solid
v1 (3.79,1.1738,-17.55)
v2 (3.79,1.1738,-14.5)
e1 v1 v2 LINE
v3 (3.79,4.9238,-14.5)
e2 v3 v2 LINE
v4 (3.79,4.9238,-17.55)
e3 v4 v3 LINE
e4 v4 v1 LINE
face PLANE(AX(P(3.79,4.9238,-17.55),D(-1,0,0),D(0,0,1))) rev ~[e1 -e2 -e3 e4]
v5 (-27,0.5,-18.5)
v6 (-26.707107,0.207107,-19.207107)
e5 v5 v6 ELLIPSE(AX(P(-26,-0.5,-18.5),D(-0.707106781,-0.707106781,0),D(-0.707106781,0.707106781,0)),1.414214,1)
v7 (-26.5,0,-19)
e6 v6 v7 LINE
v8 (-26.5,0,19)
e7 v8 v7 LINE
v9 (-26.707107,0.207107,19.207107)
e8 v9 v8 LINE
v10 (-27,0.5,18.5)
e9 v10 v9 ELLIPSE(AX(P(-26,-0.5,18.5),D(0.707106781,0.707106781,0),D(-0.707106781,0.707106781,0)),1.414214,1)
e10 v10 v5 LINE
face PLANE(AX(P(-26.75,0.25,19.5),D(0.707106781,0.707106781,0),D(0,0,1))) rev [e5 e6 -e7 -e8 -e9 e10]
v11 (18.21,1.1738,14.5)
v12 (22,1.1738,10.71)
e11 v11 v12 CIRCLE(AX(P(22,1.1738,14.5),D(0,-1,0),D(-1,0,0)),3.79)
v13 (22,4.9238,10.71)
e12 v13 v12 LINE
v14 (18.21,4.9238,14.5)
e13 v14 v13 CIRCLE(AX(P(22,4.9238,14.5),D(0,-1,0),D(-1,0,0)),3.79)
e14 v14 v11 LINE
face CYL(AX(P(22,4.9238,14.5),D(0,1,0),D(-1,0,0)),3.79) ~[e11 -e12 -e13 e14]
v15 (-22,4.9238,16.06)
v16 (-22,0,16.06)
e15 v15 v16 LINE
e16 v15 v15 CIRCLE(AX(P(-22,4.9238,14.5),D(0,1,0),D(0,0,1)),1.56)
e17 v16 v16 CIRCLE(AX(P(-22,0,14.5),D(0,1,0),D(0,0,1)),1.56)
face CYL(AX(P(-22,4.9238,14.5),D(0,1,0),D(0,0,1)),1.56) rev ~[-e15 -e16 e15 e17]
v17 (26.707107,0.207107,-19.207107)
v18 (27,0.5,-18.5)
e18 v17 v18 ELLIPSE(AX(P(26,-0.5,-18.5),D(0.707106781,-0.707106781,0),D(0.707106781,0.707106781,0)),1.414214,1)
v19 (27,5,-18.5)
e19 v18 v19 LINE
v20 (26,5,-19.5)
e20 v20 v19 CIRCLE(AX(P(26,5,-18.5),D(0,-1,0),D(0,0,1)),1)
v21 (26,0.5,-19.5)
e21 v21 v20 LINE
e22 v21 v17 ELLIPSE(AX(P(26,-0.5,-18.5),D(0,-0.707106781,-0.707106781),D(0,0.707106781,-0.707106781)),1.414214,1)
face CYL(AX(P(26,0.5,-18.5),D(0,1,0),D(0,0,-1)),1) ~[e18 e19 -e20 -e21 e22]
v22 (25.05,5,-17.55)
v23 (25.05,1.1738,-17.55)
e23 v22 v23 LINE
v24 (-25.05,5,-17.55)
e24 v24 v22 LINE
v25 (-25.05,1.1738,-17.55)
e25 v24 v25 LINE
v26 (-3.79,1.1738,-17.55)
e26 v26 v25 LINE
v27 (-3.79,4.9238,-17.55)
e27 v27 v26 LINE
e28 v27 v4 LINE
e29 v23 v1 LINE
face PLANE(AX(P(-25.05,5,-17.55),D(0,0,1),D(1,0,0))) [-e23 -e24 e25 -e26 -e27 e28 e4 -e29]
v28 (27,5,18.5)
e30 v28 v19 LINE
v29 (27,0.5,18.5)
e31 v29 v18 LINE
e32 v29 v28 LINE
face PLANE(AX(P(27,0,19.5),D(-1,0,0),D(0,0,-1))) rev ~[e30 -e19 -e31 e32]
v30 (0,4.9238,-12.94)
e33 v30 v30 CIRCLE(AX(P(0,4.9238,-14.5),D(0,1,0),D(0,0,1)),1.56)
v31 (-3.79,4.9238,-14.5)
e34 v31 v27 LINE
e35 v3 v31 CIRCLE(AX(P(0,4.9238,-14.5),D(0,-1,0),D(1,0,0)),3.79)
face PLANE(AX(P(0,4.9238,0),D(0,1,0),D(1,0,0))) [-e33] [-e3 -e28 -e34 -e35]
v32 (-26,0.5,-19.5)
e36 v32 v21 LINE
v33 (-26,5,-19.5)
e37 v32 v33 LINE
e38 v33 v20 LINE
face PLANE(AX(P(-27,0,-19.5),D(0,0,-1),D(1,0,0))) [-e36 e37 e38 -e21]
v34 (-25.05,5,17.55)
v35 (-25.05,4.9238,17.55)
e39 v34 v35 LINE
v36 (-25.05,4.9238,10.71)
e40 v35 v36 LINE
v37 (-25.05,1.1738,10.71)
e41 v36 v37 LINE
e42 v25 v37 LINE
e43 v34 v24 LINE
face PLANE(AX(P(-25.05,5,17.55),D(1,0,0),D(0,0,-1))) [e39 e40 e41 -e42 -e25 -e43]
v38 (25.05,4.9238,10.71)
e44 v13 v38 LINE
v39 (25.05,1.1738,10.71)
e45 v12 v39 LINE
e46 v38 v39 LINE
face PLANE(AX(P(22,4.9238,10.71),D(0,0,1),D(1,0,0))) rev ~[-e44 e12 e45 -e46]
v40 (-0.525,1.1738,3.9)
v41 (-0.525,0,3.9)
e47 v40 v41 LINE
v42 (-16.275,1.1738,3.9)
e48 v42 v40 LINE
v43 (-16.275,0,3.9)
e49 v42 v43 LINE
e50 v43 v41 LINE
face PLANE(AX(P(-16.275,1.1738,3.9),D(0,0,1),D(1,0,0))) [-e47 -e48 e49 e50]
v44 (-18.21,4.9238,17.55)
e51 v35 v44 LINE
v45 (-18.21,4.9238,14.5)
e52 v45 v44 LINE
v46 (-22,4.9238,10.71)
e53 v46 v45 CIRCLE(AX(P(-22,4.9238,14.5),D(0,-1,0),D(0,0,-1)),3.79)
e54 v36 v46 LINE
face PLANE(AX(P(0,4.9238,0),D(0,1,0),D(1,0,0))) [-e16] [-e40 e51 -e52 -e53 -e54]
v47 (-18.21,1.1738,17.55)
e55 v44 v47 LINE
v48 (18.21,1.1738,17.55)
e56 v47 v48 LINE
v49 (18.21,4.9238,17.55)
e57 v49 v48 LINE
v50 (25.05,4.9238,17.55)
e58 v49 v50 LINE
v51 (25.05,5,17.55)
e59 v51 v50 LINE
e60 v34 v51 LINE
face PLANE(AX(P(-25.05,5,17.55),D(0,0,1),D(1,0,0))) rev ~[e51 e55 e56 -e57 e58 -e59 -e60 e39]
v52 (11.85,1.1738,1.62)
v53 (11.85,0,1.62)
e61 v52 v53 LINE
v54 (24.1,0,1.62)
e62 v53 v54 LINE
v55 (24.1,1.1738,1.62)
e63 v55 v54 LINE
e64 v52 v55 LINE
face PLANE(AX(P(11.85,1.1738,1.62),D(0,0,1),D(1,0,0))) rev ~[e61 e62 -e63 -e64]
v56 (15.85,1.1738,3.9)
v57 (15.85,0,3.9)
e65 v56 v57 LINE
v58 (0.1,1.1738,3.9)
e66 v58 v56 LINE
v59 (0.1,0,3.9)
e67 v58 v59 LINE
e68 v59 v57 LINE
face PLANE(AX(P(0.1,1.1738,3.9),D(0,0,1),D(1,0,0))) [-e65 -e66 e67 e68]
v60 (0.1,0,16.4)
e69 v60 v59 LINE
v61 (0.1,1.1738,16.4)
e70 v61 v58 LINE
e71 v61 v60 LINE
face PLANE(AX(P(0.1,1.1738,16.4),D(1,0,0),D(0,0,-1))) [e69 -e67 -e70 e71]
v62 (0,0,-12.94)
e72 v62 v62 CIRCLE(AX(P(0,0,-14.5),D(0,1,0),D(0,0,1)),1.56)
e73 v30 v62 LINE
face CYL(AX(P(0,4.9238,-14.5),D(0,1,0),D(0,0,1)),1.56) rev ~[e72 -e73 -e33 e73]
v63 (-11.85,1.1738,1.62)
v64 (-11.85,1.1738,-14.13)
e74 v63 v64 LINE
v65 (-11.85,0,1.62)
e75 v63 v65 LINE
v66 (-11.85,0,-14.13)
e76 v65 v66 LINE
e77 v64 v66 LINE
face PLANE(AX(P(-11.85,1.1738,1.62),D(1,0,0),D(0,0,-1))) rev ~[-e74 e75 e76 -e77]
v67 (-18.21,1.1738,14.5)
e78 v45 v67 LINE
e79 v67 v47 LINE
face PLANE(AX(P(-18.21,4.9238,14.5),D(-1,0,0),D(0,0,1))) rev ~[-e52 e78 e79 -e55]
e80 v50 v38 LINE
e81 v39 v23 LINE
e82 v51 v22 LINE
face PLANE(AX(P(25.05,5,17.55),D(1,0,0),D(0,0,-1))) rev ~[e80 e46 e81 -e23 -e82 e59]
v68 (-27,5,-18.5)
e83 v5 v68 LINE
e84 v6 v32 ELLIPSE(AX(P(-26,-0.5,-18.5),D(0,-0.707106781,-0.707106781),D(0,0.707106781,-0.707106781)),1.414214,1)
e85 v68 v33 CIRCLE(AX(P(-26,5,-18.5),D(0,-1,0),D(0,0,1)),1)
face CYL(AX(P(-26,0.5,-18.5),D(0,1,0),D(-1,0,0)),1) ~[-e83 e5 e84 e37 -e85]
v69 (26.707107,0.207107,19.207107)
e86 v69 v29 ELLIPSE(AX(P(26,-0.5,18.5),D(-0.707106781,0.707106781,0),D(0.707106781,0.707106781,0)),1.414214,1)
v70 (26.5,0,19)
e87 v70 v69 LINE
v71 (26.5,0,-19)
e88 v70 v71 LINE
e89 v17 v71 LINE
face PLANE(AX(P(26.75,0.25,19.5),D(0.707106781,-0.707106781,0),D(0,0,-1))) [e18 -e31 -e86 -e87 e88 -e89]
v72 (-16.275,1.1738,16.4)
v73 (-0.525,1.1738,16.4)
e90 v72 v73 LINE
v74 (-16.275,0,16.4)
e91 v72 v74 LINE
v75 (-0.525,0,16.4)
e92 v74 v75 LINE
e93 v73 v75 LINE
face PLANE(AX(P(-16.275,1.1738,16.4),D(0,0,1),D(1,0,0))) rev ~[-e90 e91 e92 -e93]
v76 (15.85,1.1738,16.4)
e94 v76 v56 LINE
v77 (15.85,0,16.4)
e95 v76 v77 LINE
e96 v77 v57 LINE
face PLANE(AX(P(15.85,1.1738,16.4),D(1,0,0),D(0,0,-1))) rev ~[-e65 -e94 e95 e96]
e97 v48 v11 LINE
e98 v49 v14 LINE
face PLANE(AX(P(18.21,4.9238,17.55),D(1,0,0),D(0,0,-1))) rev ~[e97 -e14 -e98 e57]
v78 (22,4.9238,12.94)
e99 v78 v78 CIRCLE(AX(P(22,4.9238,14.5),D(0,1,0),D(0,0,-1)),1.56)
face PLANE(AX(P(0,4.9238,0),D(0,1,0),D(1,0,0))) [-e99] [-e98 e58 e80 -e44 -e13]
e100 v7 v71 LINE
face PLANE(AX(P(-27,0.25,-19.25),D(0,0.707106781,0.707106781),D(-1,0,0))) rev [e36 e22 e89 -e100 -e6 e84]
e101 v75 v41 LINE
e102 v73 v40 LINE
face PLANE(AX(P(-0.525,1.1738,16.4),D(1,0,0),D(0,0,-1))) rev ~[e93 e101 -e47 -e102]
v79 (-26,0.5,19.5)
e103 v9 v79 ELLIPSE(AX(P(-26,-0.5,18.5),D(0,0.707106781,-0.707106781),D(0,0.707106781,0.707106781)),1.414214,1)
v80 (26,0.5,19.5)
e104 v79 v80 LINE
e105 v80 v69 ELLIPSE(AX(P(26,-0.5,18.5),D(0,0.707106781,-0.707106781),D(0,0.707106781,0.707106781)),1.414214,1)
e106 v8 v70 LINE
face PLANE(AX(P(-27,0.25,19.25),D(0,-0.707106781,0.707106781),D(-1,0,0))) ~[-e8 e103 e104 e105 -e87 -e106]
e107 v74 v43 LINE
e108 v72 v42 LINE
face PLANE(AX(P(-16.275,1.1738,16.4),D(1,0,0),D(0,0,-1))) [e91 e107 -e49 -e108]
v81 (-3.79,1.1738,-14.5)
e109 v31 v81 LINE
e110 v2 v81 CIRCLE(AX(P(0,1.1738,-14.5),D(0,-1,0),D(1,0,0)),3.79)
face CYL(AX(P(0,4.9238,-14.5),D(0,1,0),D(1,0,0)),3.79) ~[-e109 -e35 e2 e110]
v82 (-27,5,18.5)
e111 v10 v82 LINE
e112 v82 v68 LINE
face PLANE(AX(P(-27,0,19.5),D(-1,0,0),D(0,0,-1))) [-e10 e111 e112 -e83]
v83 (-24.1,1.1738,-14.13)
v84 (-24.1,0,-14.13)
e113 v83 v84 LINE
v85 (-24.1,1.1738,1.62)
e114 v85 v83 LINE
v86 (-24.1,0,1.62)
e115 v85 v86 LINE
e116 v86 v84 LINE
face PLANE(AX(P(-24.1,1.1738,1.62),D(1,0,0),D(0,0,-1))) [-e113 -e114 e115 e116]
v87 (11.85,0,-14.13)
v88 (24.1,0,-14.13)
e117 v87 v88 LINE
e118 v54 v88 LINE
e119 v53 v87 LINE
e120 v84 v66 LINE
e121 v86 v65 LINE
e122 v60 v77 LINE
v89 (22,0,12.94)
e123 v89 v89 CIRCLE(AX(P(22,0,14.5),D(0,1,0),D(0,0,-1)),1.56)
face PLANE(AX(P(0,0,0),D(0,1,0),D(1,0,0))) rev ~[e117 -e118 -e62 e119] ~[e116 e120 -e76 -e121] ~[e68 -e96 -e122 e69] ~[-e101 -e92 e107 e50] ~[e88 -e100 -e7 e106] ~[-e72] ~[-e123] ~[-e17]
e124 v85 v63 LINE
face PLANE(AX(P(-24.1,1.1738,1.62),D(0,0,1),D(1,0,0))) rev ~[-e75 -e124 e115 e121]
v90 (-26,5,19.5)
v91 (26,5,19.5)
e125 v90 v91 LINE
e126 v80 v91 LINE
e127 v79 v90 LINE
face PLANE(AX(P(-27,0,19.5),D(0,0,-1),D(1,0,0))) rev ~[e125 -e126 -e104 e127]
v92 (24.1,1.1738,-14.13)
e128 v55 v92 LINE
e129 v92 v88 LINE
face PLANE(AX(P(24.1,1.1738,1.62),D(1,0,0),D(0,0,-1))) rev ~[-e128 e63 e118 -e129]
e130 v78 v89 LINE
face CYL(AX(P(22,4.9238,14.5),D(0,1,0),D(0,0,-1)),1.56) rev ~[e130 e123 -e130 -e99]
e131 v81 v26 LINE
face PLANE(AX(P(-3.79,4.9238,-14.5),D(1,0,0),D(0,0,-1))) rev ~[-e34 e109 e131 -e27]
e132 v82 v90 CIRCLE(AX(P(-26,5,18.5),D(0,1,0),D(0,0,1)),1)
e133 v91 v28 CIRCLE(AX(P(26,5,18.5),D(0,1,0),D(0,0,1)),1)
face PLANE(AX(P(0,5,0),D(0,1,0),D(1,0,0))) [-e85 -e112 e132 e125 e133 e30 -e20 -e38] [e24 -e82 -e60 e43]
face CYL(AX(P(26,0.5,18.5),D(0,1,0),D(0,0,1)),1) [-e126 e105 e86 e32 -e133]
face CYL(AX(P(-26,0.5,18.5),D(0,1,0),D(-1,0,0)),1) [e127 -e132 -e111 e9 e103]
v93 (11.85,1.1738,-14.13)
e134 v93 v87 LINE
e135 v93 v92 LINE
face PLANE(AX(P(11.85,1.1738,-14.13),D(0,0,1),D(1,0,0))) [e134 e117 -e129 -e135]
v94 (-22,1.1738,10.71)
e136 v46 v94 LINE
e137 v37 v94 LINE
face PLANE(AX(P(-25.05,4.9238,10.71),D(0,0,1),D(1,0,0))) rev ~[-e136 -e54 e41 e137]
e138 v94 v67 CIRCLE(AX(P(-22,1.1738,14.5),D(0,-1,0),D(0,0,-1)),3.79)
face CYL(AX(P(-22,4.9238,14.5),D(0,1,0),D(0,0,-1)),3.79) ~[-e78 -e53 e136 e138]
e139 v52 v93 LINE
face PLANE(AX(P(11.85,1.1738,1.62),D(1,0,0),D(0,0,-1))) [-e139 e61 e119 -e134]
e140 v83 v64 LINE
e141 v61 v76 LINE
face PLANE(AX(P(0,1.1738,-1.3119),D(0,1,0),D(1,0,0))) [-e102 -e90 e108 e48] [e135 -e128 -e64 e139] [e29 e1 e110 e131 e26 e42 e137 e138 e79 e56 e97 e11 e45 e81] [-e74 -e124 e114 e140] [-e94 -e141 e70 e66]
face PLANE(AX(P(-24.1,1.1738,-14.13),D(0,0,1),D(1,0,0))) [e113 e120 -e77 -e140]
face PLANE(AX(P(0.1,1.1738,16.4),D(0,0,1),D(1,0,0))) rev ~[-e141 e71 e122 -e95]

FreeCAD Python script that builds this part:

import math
import FreeCAD as App
import Part
import Sketcher

V = App.Vector
Q = App.Units.Quantity


def edges_at(feature, points):
    """Names of the edges that pass closest to the given points."""
    edges = feature.Shape.Edges
    near = lambda p: min(range(len(edges)), key=lambda i: edges[i].distToShape(Part.Vertex(*p))[0])
    return sorted({f"Edge{near(p) + 1}" for p in points})


def add_polygon(sketch, points):
    """Adds a closed chain of lines whose ends are joined by coincident constraints."""
    first, n = sketch.GeometryCount, len(points)
    for a, b in zip(points, points[1:] + points[:1]):
        sketch.addGeometry(Part.LineSegment(App.Vector(*a, 0), App.Vector(*b, 0)), False)
    for i in range(n):
        sketch.addConstraint(Sketcher.Constraint("Coincident", first + i, 2, first + (i + 1) % n, 1))

doc = App.newDocument("Part")
params = doc.addObject("Spreadsheet::Sheet", "Params")
for row, (alias, value) in enumerate([
    ("sketch1_width", "54 mm"),
    ("sketch1_height", "39 mm"),
    ("pad1_length", "5 mm"),
    ("sketch2_width", "50.1 mm"),
    ("sketch2_height", "35.1 mm"),
    ("pocket1_length", "0.0762 mm"),
    ("sketch3_radius", "3.79 mm"),
    ("sketch3_width", "21.26 mm"),
    ("pocket2_length", "3.75 mm"),
    ("sketch4_diameter", "3.12 mm"),
    ("sketch5_height", "12.5 mm"),
    ("sketch5_width", "12.25 mm"),
    ("chamfer_size", "0.5 mm"),
    ("fillet_radius", "1 mm"),
], start=1):
    params.set(f"A{row}", alias)
    params.set(f"B{row}", "=" + value)
    params.setAlias(f"B{row}", alias)

body = doc.addObject("PartDesign::Body", "Body")

# Sketch on XZ plane
sketch1 = body.newObject("Sketcher::SketchObject", "Sketch")
sketch1.AttachmentSupport = (doc.getObject("XZ_Plane"), [""])
sketch1.MapMode = "FlatFace"
add_polygon(sketch1, [(-27, -19.5), (-27, 19.5), (27, 19.5), (27, -19.5)])  # lines 0-3
sketch1.addConstraint([
    Sketcher.Constraint("Vertical", 0),
    Sketcher.Constraint("Horizontal", 1),
    Sketcher.Constraint("Vertical", 2),
    Sketcher.Constraint("Horizontal", 3),
    Sketcher.Constraint("Symmetric", 0, 2, 2, 2, -1, 1),
    Sketcher.Constraint("DistanceX", 1, 1, 1, 2, Q("54 mm")),
    Sketcher.Constraint("DistanceY", 0, 1, 0, 2, Q("39 mm")),
])
sketch1.setExpression("Constraints[9]", "Params.sketch1_width")
sketch1.setExpression("Constraints[10]", "Params.sketch1_height")
pad1 = body.newObject("PartDesign::Pad", "Pad")
pad1.Profile = sketch1
pad1.setExpression("Length", "Params.pad1_length")
pad1.Reversed = True

# Sketch on XZ plane
sketch2 = body.newObject("Sketcher::SketchObject", "Sketch001")
sketch2.AttachmentSupport = (doc.getObject("XZ_Plane"), [""])
sketch2.MapMode = "FlatFace"
sketch2.AttachmentOffset = App.Placement(V(0, 0, -5), App.Rotation())
add_polygon(sketch2, [(-25.05, -17.55), (-25.05, 17.55), (25.05, 17.55), (25.05, -17.55)])  # lines 0-3
sketch2.addConstraint([
    Sketcher.Constraint("Vertical", 0),
    Sketcher.Constraint("Horizontal", 1),
    Sketcher.Constraint("Vertical", 2),
    Sketcher.Constraint("Horizontal", 3),
    Sketcher.Constraint("Symmetric", 0, 2, 2, 2, -1, 1),
    Sketcher.Constraint("DistanceX", 1, 1, 1, 2, Q("50.1 mm")),
    Sketcher.Constraint("DistanceY", 0, 1, 0, 2, Q("35.1 mm")),
])
sketch2.setExpression("Constraints[9]", "Params.sketch2_width")
sketch2.setExpression("Constraints[10]", "Params.sketch2_height")
pocket1 = body.newObject("PartDesign::Pocket", "Pocket")
pocket1.Profile = sketch2
pocket1.setExpression("Length", "Params.pocket1_length")
pocket1.Reversed = True

# Sketch on XZ plane
sketch3 = body.newObject("Sketcher::SketchObject", "Sketch002")
sketch3.AttachmentSupport = (doc.getObject("XZ_Plane"), [""])
sketch3.MapMode = "FlatFace"
sketch3.AttachmentOffset = App.Placement(V(0, 0, -4.9238), App.Rotation())
sketch3.addGeometry([
    Part.LineSegment(V(-3.79, -14.5, 0), V(-3.79, -17.55, 0)),  # 0
    Part.LineSegment(V(-3.79, -17.55, 0), V(-25.05, -17.55, 0)),  # 1
    Part.LineSegment(V(-25.05, -17.55, 0), V(-25.05, 10.71, 0)),  # 2
    Part.LineSegment(V(-25.05, 10.71, 0), V(-22, 10.71, 0)),  # 3
    Part.ArcOfCircle(Part.Circle(V(-22, 14.5, 0), V(0, 0, 1), 3.79), math.radians(-90), math.radians(0)),  # 4
    Part.LineSegment(V(-18.21, 14.5, 0), V(-18.21, 17.55, 0)),  # 5
    Part.LineSegment(V(-18.21, 17.55, 0), V(18.21, 17.55, 0)),  # 6
    Part.LineSegment(V(18.21, 17.55, 0), V(18.21, 14.5, 0)),  # 7
    Part.ArcOfCircle(Part.Circle(V(22, 14.5, 0), V(0, 0, 1), 3.79), math.radians(180), math.radians(270)),  # 8
    Part.LineSegment(V(22, 10.71, 0), V(25.05, 10.71, 0)),  # 9
    Part.LineSegment(V(25.05, 10.71, 0), V(25.05, -17.55, 0)),  # 10
    Part.LineSegment(V(25.05, -17.55, 0), V(3.79, -17.55, 0)),  # 11
    Part.LineSegment(V(3.79, -17.55, 0), V(3.79, -14.5, 0)),  # 12
    Part.ArcOfCircle(Part.Circle(V(0, -14.5, 0), V(0, 0, 1), 3.79), math.radians(0), math.radians(180)),  # 13
], False)
sketch3.addConstraint([
    Sketcher.Constraint("Coincident", 0, 2, 1, 1),
    Sketcher.Constraint("Coincident", 1, 2, 2, 1),
    Sketcher.Constraint("Coincident", 2, 2, 3, 1),
    Sketcher.Constraint("Tangent", 3, 2, 4, 1),
    Sketcher.Constraint("Tangent", 4, 2, 5, 1),
    Sketcher.Constraint("Coincident", 5, 2, 6, 1),
    Sketcher.Constraint("Coincident", 6, 2, 7, 1),
    Sketcher.Constraint("Tangent", 7, 2, 8, 1),
    Sketcher.Constraint("Tangent", 8, 2, 9, 1),
    Sketcher.Constraint("Coincident", 9, 2, 10, 1),
    Sketcher.Constraint("Coincident", 10, 2, 11, 1),
    Sketcher.Constraint("Coincident", 11, 2, 12, 1),
    Sketcher.Constraint("Tangent", 12, 2, 13, 1),
    Sketcher.Constraint("Tangent", 13, 2, 0, 1),
    Sketcher.Constraint("Vertical", 0),
    Sketcher.Constraint("Horizontal", 1),
    Sketcher.Constraint("Vertical", 2),
    Sketcher.Constraint("Horizontal", 3),
    Sketcher.Constraint("Vertical", 5),
    Sketcher.Constraint("Horizontal", 6),
    Sketcher.Constraint("Vertical", 7),
    Sketcher.Constraint("Horizontal", 9),
    Sketcher.Constraint("Vertical", 10),
    Sketcher.Constraint("Horizontal", 11),
    Sketcher.Constraint("Vertical", 12),
    Sketcher.Constraint("Equal", 4, 8),
    Sketcher.Constraint("Equal", 8, 13),
    Sketcher.Constraint("Symmetric", 4, 3, 8, 3, -2),
    Sketcher.Constraint("Symmetric", 1, 2, 10, 2, -2),
    Sketcher.Constraint("PointOnObject", 13, 3, -2),
    Sketcher.Constraint("Equal", 9, 0),
    Sketcher.Constraint("Equal", 0, 5),
    Sketcher.Constraint("Radius", 4, Q("3.79 mm")),
    Sketcher.Constraint("DistanceX", 4, 3, -1, 1, Q("22 mm")),
    Sketcher.Constraint("DistanceY", 13, 3, 4, 3, Q("29 mm")),
    Sketcher.Constraint("DistanceX", 1, 2, 1, 1, Q("21.26 mm")),
    Sketcher.Constraint("DistanceY", -1, 1, 4, 3, Q("14.5 mm")),
])
sketch3.setExpression("Constraints[32]", "Params.sketch3_radius")
sketch3.setExpression("Constraints[35]", "Params.sketch3_width")
pocket2 = body.newObject("PartDesign::Pocket", "Pocket001")
pocket2.Profile = sketch3
pocket2.setExpression("Length", "Params.pocket2_length")
pocket2.Reversed = True

# Sketch on XZ plane
sketch4 = body.newObject("Sketcher::SketchObject", "Sketch003")
sketch4.AttachmentSupport = (doc.getObject("XZ_Plane"), [""])
sketch4.MapMode = "FlatFace"
sketch4.AttachmentOffset = App.Placement(V(0, 0, -4.9238), App.Rotation())
sketch4.addGeometry([
    Part.Circle(V(0, -14.5, 0), V(0, 0, 1), 1.56),
    Part.Circle(V(-22, 14.5, 0), V(0, 0, 1), 1.56),
    Part.Circle(V(22, 14.5, 0), V(0, 0, 1), 1.56),
], False)
sketch4.addConstraint([
    Sketcher.Constraint("Equal", 0, 1),
    Sketcher.Constraint("Equal", 1, 2),
    Sketcher.Constraint("Symmetric", 1, 3, 2, 3, -2),
    Sketcher.Constraint("PointOnObject", 0, 3, -2),
    Sketcher.Constraint("Diameter", 0, Q("3.12 mm")),
    Sketcher.Constraint("DistanceX", 1, 3, -1, 1, Q("22 mm")),
    Sketcher.Constraint("DistanceY", 0, 3, 1, 3, Q("29 mm")),
    Sketcher.Constraint("DistanceY", 0, 3, -1, 1, Q("14.5 mm")),
])
sketch4.setExpression("Constraints[4]", "Params.sketch4_diameter")
pocket3 = body.newObject("PartDesign::Pocket", "Pocket002")
pocket3.Profile = sketch4
pocket3.Type = "ThroughAll"
pocket3.Reversed = True

# Sketch on XZ plane
sketch5 = body.newObject("Sketcher::SketchObject", "Sketch004")
sketch5.AttachmentSupport = (doc.getObject("XZ_Plane"), [""])
sketch5.MapMode = "FlatFace"
sketch5.AttachmentOffset = App.Placement(V(0, 0, -1.1738), App.Rotation())
add_polygon(sketch5, [(11.85, -14.13), (11.85, 1.62), (24.1, 1.62), (24.1, -14.13)])  # lines 0-3
add_polygon(sketch5, [(0.1, 3.9), (0.1, 16.4), (15.85, 16.4), (15.85, 3.9)])  # lines 4-7
add_polygon(sketch5, [(-24.1, -14.13), (-24.1, 1.62), (-11.85, 1.62), (-11.85, -14.13)])  # lines 8-11
add_polygon(sketch5, [(-16.275, 3.9), (-16.275, 16.4), (-0.525, 16.4), (-0.525, 3.9)])  # lines 12-15
sketch5.addConstraint([
    Sketcher.Constraint("Vertical", 0),
    Sketcher.Constraint("Horizontal", 1),
    Sketcher.Constraint("Vertical", 2),
    Sketcher.Constraint("Horizontal", 3),
    Sketcher.Constraint("Vertical", 4),
    Sketcher.Constraint("Horizontal", 5),
    Sketcher.Constraint("Vertical", 6),
    Sketcher.Constraint("Horizontal", 7),
    Sketcher.Constraint("Vertical", 8),
    Sketcher.Constraint("Horizontal", 9),
    Sketcher.Constraint("Vertical", 10),
    Sketcher.Constraint("Horizontal", 11),
    Sketcher.Constraint("Vertical", 12),
    Sketcher.Constraint("Horizontal", 13),
    Sketcher.Constraint("Vertical", 14),
    Sketcher.Constraint("Horizontal", 15),
    Sketcher.Constraint("Symmetric", 1, 2, 8, 2, -2),
    Sketcher.Constraint("Symmetric", 3, 2, 10, 2, -2),
    Sketcher.Constraint("Horizontal", 5, 2, 12, 2),
    Sketcher.Constraint("Horizontal", 7, 2, 14, 2),
    Sketcher.Constraint("Equal", 7, 13),
    Sketcher.Constraint("Equal", 15, 0),
    Sketcher.Constraint("DistanceY", 4, 1, 4, 2, Q("12.5 mm")),
    Sketcher.Constraint("DistanceX", 4, 2, 1, 2, Q("24 mm")),
    Sketcher.Constraint("DistanceX", 0, 2, 5, 2, Q("4 mm")),
    Sketcher.Constraint("DistanceX", 1, 1, 1, 2, Q("12.25 mm")),
    Sketcher.Constraint("DistanceX", -1, 1, 1, 2, Q("24.1 mm")),
    Sketcher.Constraint("DistanceY", -1, 1, 4, 2, Q("16.4 mm")),
    Sketcher.Constraint("DistanceY", -1, 1, 0, 2, Q("1.62 mm")),
    Sketcher.Constraint("DistanceX", 12, 2, -1, 1, Q("16.275 mm")),
])
sketch5.setExpression("Constraints[38]", "Params.sketch5_height")
sketch5.setExpression("Constraints[41]", "Params.sketch5_width")
pocket4 = body.newObject("PartDesign::Pocket", "Pocket003")
pocket4.Profile = sketch5
pocket4.Type = "ThroughAll"
pocket4.Reversed = True
doc.recompute()

chamfer = body.newObject("PartDesign::Chamfer", "Chamfer")
chamfer.Base = (pocket4, edges_at(pocket4, [
    (-27, 0, 0),
    (0, 0, -19.5),
    (27, 0, 0),
    (0, 0, 19.5),
]))
chamfer.setExpression("Size", "Params.chamfer_size")
doc.recompute()

fillet = body.newObject("PartDesign::Fillet", "Fillet")
fillet.Base = (chamfer, edges_at(chamfer, [
    (-27, 2.75, 19.5),
    (-27, 2.75, -19.5),
    (27, 2.75, -19.5),
    (27, 2.75, 19.5),
]))
fillet.setExpression("Radius", "Params.fillet_radius")

doc.recompute()
